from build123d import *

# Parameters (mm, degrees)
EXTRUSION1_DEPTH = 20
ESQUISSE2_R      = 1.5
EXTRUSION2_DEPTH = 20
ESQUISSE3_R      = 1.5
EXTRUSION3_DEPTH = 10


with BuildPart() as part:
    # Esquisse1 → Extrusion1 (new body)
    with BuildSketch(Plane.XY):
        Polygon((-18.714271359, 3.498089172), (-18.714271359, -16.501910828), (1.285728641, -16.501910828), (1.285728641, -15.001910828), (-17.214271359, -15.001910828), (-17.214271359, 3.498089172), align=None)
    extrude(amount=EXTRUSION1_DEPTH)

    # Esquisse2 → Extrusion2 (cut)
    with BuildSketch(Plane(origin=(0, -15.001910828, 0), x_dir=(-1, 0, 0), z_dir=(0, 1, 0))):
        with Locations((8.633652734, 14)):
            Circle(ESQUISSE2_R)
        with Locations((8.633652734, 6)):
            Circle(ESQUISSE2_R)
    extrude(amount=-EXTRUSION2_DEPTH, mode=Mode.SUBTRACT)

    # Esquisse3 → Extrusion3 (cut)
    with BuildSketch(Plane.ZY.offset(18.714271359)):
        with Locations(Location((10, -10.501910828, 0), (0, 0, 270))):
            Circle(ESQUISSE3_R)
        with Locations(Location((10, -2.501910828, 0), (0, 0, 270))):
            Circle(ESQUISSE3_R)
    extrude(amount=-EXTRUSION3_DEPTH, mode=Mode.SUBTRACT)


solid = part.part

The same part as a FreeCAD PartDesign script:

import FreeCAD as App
import Part
import Sketcher


def add_polygon(sketch, points):
    """Adds a closed chain of lines whose ends are joined by coincident constraints."""
    first, n = sketch.GeometryCount, len(points)
    for a, b in zip(points, points[1:] + points[:1]):
        sketch.addGeometry(Part.LineSegment(App.Vector(*a, 0), App.Vector(*b, 0)), False)
    for i in range(n):
        sketch.addConstraint(Sketcher.Constraint("Coincident", first + i, 2, first + (i + 1) % n, 1))

doc = App.newDocument("Part")
params = doc.addObject("Spreadsheet::Sheet", "Params")
for row, (alias, value) in enumerate([
    ("sketch1_width", "20 mm"),
    ("sketch1_width2", "18.5 mm"),
    ("pad1_length", "20 mm"),
    ("sketch2_diameter", "3 mm"),
    ("pocket1_length", "20 mm"),
    ("sketch3_diameter", "3 mm"),
    ("pocket2_length", "10 mm"),
], start=1):
    params.set(f"A{row}", alias)
    params.set(f"B{row}", "=" + value)
    params.setAlias(f"B{row}", alias)

body = doc.addObject("PartDesign::Body", "Body")

# Sketch on XY plane
sketch1 = body.newObject("Sketcher::SketchObject", "Sketch")
sketch1.AttachmentSupport = (doc.getObject("XY_Plane"), [""])
sketch1.MapMode = "FlatFace"
add_polygon(sketch1, [(-18.7, 3.5), (-18.7, -16.5), (1.3, -16.5), (1.3, -15), (-17.2, -15), (-17.2, 3.5)])  # lines 0-5
sketch1.addConstraint([
    Sketcher.Constraint("Vertical", 0),
    Sketcher.Constraint("Horizontal", 1),
    Sketcher.Constraint("Vertical", 2),
    Sketcher.Constraint("Horizontal", 3),
    Sketcher.Constraint("Vertical", 4),
    Sketcher.Constraint("Horizontal", 5),
    Sketcher.Constraint("Equal", 1, 0),
    Sketcher.Constraint("Equal", 5, 2),
    Sketcher.Constraint("DistanceX", 1, 1, 1, 2, 20.0),
    Sketcher.Constraint("DistanceX", 3, 2, 3, 1, 18.5),
    Sketcher.Constraint("DistanceX", 0, 2, -1, 1, 18.714271),
    Sketcher.Constraint("DistanceY", 0, 2, -1, 1, 16.501911),
])
sketch1.setExpression("Constraints[14]", "Params.sketch1_width")
sketch1.setExpression("Constraints[15]", "Params.sketch1_width2")
pad1 = body.newObject("PartDesign::Pad", "Pad")
pad1.Profile = sketch1
pad1.setExpression("Length", "Params.pad1_length")

# Sketch on XZ plane
sketch2 = body.newObject("Sketcher::SketchObject", "Sketch001")
sketch2.AttachmentSupport = (doc.getObject("XZ_Plane"), [""])
sketch2.MapMode = "FlatFace"
sketch2.AttachmentOffset = App.Placement(App.Vector(0, 0, 15.001911), App.Rotation())
sketch2.addGeometry([
    Part.Circle(App.Vector(-8.6, 14, 0), App.Vector(0, 0, 1), 1.5),
    Part.Circle(App.Vector(-8.6, 6, 0), App.Vector(0, 0, 1), 1.5),
], False)
sketch2.addConstraint([
    Sketcher.Constraint("Equal", 0, 1),
    Sketcher.Constraint("Vertical", 0, 3, 1, 3),
    Sketcher.Constraint("Diameter", 0, 3.0),
    Sketcher.Constraint("DistanceY", -1, 1, 0, 3, 14.0),
    Sketcher.Constraint("DistanceY", -1, 1, 1, 3, 6.0),
    Sketcher.Constraint("DistanceX", 0, 3, -1, 1, 8.633653),
])
sketch2.setExpression("Constraints[2]", "Params.sketch2_diameter")
pocket1 = body.newObject("PartDesign::Pocket", "Pocket")
pocket1.Profile = sketch2
pocket1.setExpression("Length", "Params.pocket1_length")
pocket1.Reversed = True

# Sketch on YZ plane
sketch3 = body.newObject("Sketcher::SketchObject", "Sketch002")
sketch3.AttachmentSupport = (doc.getObject("YZ_Plane"), [""])
sketch3.MapMode = "FlatFace"
sketch3.AttachmentOffset = App.Placement(App.Vector(0, 0, -18.714271), App.Rotation())
sketch3.addGeometry([
    Part.Circle(App.Vector(-10.5, 10, 0), App.Vector(0, 0, 1), 1.5),
    Part.Circle(App.Vector(-2.5, 10, 0), App.Vector(0, 0, 1), 1.5),
], False)
sketch3.addConstraint([
    Sketcher.Constraint("Equal", 0, 1),
    Sketcher.Constraint("Horizontal", 0, 3, 1, 3),
    Sketcher.Constraint("Diameter", 0, 3.0),
    Sketcher.Constraint("DistanceY", -1, 1, 0, 3, 10.0),
    Sketcher.Constraint("DistanceX", 0, 3, 1, 3, 8.0),
    Sketcher.Constraint("DistanceX", 0, 3, -1, 1, 10.501911),
])
sketch3.setExpression("Constraints[2]", "Params.sketch3_diameter")
pocket2 = body.newObject("PartDesign::Pocket", "Pocket001")
pocket2.Profile = sketch3
pocket2.setExpression("Length", "Params.pocket2_length")
pocket2.Reversed = True

doc.recompute()
